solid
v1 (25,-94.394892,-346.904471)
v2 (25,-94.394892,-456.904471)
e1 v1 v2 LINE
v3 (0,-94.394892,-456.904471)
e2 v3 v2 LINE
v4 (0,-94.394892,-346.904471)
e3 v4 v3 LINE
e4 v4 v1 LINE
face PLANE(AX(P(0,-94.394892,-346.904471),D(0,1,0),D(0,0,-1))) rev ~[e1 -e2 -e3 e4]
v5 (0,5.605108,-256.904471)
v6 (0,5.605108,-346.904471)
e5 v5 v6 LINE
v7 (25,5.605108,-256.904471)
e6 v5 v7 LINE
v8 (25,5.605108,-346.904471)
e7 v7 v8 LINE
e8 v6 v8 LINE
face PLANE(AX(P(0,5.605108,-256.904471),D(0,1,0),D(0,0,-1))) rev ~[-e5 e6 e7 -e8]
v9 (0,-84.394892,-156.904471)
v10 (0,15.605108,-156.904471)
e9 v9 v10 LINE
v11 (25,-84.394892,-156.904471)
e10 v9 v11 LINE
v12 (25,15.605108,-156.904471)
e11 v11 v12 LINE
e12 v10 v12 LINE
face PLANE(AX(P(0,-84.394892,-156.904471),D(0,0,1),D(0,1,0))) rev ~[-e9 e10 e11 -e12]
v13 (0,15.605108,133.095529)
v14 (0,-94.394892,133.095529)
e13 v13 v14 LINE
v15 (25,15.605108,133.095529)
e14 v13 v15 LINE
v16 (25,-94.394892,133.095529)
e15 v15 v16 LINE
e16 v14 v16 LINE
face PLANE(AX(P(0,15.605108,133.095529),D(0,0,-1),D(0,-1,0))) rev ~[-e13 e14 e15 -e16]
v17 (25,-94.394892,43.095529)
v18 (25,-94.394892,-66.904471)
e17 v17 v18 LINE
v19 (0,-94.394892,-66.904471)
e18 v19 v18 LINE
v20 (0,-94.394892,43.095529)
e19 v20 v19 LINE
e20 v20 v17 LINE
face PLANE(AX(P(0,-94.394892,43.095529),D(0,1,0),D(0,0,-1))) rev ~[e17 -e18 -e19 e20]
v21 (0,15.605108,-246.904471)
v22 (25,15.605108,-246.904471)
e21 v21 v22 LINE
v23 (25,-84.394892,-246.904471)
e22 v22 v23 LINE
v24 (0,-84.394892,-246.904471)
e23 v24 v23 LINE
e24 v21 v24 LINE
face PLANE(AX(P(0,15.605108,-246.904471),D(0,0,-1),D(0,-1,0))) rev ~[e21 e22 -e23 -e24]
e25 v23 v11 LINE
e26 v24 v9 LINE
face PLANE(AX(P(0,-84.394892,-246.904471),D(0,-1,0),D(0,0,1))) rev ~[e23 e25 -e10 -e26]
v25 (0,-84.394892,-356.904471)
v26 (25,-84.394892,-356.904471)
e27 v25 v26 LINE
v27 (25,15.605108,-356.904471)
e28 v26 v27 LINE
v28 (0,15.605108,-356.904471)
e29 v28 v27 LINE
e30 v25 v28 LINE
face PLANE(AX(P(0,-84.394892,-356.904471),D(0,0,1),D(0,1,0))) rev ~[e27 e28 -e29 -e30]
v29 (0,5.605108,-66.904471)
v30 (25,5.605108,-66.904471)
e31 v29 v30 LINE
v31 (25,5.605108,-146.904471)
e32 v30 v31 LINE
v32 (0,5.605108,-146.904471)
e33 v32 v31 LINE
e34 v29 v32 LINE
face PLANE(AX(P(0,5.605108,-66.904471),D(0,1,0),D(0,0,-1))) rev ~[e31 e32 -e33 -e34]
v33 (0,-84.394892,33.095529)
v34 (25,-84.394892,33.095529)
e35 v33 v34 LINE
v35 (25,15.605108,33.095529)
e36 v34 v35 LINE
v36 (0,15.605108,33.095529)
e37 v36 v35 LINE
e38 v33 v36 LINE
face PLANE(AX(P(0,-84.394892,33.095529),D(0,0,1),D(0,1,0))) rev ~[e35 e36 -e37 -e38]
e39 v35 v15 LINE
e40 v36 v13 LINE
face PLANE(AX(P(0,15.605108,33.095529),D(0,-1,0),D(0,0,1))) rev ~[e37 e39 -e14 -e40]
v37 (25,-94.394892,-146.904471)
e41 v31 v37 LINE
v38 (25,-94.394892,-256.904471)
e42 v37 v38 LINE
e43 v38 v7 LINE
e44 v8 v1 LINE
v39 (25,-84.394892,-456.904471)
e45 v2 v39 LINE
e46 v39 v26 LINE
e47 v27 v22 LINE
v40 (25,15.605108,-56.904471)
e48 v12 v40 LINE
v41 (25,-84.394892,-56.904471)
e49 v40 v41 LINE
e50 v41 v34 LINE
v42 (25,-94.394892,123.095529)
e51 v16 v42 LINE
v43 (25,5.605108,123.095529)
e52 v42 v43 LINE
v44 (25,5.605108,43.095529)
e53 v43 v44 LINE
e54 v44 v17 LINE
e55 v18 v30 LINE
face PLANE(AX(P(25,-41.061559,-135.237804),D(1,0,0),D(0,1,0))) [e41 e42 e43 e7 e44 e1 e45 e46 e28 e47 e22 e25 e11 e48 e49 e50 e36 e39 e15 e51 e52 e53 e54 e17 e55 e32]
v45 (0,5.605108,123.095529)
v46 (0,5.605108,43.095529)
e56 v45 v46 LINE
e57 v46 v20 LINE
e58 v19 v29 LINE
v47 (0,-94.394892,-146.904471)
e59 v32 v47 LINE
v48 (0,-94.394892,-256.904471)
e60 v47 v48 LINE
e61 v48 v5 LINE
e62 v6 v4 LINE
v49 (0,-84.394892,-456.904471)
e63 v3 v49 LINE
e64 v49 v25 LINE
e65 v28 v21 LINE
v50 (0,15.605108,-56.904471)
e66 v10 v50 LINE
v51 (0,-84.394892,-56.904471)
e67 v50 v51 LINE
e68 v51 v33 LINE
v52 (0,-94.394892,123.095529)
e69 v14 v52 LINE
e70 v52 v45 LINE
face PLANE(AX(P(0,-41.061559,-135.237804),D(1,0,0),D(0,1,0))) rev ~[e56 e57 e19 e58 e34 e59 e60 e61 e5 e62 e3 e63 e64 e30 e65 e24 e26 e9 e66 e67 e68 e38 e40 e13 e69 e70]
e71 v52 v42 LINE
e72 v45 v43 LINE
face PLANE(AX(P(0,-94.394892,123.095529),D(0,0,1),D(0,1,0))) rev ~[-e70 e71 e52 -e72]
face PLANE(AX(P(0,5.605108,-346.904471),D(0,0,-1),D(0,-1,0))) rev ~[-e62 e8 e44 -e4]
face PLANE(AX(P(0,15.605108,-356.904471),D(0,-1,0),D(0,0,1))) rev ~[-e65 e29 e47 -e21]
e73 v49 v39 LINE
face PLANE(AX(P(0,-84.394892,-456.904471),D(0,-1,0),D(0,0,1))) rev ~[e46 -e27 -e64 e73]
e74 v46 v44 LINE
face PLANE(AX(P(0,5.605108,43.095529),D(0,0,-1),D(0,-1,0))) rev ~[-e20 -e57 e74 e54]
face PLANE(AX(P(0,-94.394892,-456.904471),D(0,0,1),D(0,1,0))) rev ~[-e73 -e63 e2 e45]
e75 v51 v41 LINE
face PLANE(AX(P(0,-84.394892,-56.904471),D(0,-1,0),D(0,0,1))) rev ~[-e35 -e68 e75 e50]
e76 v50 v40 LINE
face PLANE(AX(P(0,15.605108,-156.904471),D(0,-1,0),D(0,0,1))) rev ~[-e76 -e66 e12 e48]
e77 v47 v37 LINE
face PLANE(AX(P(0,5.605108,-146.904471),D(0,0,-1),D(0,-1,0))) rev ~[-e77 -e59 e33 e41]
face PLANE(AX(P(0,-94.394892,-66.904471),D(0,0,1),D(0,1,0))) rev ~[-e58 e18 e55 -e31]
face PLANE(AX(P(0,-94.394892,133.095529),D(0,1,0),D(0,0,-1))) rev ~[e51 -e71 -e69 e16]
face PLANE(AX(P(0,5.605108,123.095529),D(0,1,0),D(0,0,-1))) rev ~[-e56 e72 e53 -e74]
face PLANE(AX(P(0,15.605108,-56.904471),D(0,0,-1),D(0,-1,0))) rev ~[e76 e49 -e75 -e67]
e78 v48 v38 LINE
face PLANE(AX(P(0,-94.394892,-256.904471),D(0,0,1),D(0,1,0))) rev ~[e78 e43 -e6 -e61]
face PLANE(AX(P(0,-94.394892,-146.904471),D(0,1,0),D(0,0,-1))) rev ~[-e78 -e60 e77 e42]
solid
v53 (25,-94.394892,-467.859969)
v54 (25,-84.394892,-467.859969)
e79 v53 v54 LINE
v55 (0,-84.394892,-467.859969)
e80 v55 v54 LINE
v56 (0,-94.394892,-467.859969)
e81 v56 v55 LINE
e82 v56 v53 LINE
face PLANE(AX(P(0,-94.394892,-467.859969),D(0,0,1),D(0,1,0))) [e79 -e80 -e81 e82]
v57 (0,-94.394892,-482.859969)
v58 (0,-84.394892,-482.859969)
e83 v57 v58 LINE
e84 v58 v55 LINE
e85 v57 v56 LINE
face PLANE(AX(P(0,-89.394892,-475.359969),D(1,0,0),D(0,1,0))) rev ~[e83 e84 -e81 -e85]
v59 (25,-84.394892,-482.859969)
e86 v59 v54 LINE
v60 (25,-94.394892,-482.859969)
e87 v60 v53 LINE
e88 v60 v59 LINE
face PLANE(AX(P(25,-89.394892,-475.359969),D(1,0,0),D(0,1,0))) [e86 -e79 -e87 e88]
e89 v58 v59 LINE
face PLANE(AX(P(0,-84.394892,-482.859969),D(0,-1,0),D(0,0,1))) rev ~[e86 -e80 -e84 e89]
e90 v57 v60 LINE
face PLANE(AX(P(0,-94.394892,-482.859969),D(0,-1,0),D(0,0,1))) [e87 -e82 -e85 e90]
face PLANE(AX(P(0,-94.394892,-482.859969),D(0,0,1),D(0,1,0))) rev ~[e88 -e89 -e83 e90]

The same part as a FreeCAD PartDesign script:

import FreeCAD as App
import Part
import Sketcher

V = App.Vector
Q = App.Units.Quantity

doc = App.newDocument("Part")
body = doc.addObject("PartDesign::Body", "Body")
body.AllowCompound = True

# Sketch on YZ plane
sketch1 = body.newObject("Sketcher::SketchObject", "Sketch")
sketch1.AttachmentSupport = (doc.getObject("YZ_Plane"), [""])
sketch1.MapMode = "FlatFace"
sketch1.addGeometry([
    Part.LineSegment(V(-94, 133, 0), V(-94, 123, 0)),  # 0
    Part.LineSegment(V(-94, 123, 0), V(6, 123, 0)),  # 1
    Part.LineSegment(V(6, 123, 0), V(6, 43, 0)),  # 2
    Part.LineSegment(V(6, 43, 0), V(-94, 43, 0)),  # 3
    Part.LineSegment(V(-94, 43, 0), V(-94, -67, 0)),  # 4
    Part.LineSegment(V(-94, -67, 0), V(6, -67, 0)),  # 5
    Part.LineSegment(V(6, -67, 0), V(6, -147, 0)),  # 6
    Part.LineSegment(V(6, -147, 0), V(-94, -147, 0)),  # 7
    Part.LineSegment(V(-94, -147, 0), V(-94, -257, 0)),  # 8
    Part.LineSegment(V(-94, -257, 0), V(6, -257, 0)),  # 9
    Part.LineSegment(V(6, -257, 0), V(6, -347, 0)),  # 10
    Part.LineSegment(V(6, -347, 0), V(-94, -347, 0)),  # 11
    Part.LineSegment(V(-94, -347, 0), V(-94, -457, 0)),  # 12
    Part.LineSegment(V(-94, -457, 0), V(-84, -457, 0)),  # 13
    Part.LineSegment(V(-84, -457, 0), V(-84, -357, 0)),  # 14
    Part.LineSegment(V(-84, -357, 0), V(16, -357, 0)),  # 15
    Part.LineSegment(V(16, -357, 0), V(16, -247, 0)),  # 16
    Part.LineSegment(V(16, -247, 0), V(-84, -247, 0)),  # 17
    Part.LineSegment(V(-84, -247, 0), V(-84, -157, 0)),  # 18
    Part.LineSegment(V(-84, -157, 0), V(16, -157, 0)),  # 19
    Part.LineSegment(V(16, -157, 0), V(16, -57, 0)),  # 20
    Part.LineSegment(V(16, -57, 0), V(-84, -57, 0)),  # 21
    Part.LineSegment(V(-84, -57, 0), V(-84, 33, 0)),  # 22
    Part.LineSegment(V(-84, 33, 0), V(16, 33, 0)),  # 23
    Part.LineSegment(V(16, 33, 0), V(16, 133, 0)),  # 24
    Part.LineSegment(V(16, 133, 0), V(-94, 133, 0)),  # 25
    Part.LineSegment(V(-94, -468, 0), V(-94, -483, 0)),  # 26
    Part.LineSegment(V(-94, -483, 0), V(-84, -483, 0)),  # 27
    Part.LineSegment(V(-84, -483, 0), V(-84, -468, 0)),  # 28
    Part.LineSegment(V(-84, -468, 0), V(-94, -468, 0)),  # 29
], False)
sketch1.addConstraint([
    Sketcher.Constraint("Coincident", 0, 2, 1, 1),
    Sketcher.Constraint("Coincident", 1, 2, 2, 1),
    Sketcher.Constraint("Coincident", 2, 2, 3, 1),
    Sketcher.Constraint("Coincident", 3, 2, 4, 1),
    Sketcher.Constraint("Coincident", 4, 2, 5, 1),
    Sketcher.Constraint("Coincident", 5, 2, 6, 1),
    Sketcher.Constraint("Coincident", 6, 2, 7, 1),
    Sketcher.Constraint("Coincident", 7, 2, 8, 1),
    Sketcher.Constraint("Coincident", 8, 2, 9, 1),
    Sketcher.Constraint("Coincident", 9, 2, 10, 1),
    Sketcher.Constraint("Coincident", 10, 2, 11, 1),
    Sketcher.Constraint("Coincident", 11, 2, 12, 1),
    Sketcher.Constraint("Coincident", 12, 2, 13, 1),
    Sketcher.Constraint("Coincident", 13, 2, 14, 1),
    Sketcher.Constraint("Coincident", 14, 2, 15, 1),
    Sketcher.Constraint("Coincident", 15, 2, 16, 1),
    Sketcher.Constraint("Coincident", 16, 2, 17, 1),
    Sketcher.Constraint("Coincident", 17, 2, 18, 1),
    Sketcher.Constraint("Coincident", 18, 2, 19, 1),
    Sketcher.Constraint("Coincident", 19, 2, 20, 1),
    Sketcher.Constraint("Coincident", 20, 2, 21, 1),
    Sketcher.Constraint("Coincident", 21, 2, 22, 1),
    Sketcher.Constraint("Coincident", 22, 2, 23, 1),
    Sketcher.Constraint("Coincident", 23, 2, 24, 1),
    Sketcher.Constraint("Coincident", 24, 2, 25, 1),
    Sketcher.Constraint("Coincident", 25, 2, 0, 1),
    Sketcher.Constraint("Coincident", 26, 2, 27, 1),
    Sketcher.Constraint("Coincident", 27, 2, 28, 1),
    Sketcher.Constraint("Coincident", 28, 2, 29, 1),
    Sketcher.Constraint("Coincident", 29, 2, 26, 1),
    Sketcher.Constraint("Vertical", 0),
    Sketcher.Constraint("Horizontal", 1),
    Sketcher.Constraint("Vertical", 2),
    Sketcher.Constraint("Horizontal", 3),
    Sketcher.Constraint("Vertical", 4),
    Sketcher.Constraint("Horizontal", 5),
    Sketcher.Constraint("Vertical", 6),
    Sketcher.Constraint("Horizontal", 7),
    Sketcher.Constraint("Vertical", 8),
    Sketcher.Constraint("Horizontal", 9),
    Sketcher.Constraint("Vertical", 10),
    Sketcher.Constraint("Horizontal", 11),
    Sketcher.Constraint("Vertical", 12),
    Sketcher.Constraint("Horizontal", 13),
    Sketcher.Constraint("Vertical", 14),
    Sketcher.Constraint("Horizontal", 15),
    Sketcher.Constraint("Vertical", 16),
    Sketcher.Constraint("Horizontal", 17),
    Sketcher.Constraint("Vertical", 18),
    Sketcher.Constraint("Horizontal", 19),
    Sketcher.Constraint("Vertical", 20),
    Sketcher.Constraint("Horizontal", 21),
    Sketcher.Constraint("Vertical", 22),
    Sketcher.Constraint("Horizontal", 23),
    Sketcher.Constraint("Vertical", 24),
    Sketcher.Constraint("Horizontal", 25),
    Sketcher.Constraint("Vertical", 26),
    Sketcher.Constraint("Horizontal", 27),
    Sketcher.Constraint("Vertical", 28),
    Sketcher.Constraint("Horizontal", 29),
    Sketcher.Constraint("Vertical", 0, 2, 3, 2),
    Sketcher.Constraint("Vertical", 2, 2, 5, 2),
    Sketcher.Constraint("Vertical", 4, 2, 7, 2),
    Sketcher.Constraint("Vertical", 6, 2, 9, 2),
    Sketcher.Constraint("Vertical", 8, 2, 11, 2),
    Sketcher.Constraint("Vertical", 14, 2, 17, 2),
    Sketcher.Constraint("Vertical", 16, 2, 19, 2),
    Sketcher.Constraint("Vertical", 18, 2, 21, 2),
    Sketcher.Constraint("Vertical", 20, 2, 23, 2),
    Sketcher.Constraint("Vertical", 25, 2, 26, 2),
    Sketcher.Constraint("Vertical", 22, 2, 27, 2),
    Sketcher.Constraint("Equal", 11, 15),
    Sketcher.Constraint("Equal", 29, 0),
    Sketcher.Constraint("Equal", 25, 4),
    Sketcher.Constraint("Equal", 2, 6),
    Sketcher.Constraint("Equal", 4, 8),
    Sketcher.Constraint("Equal", 8, 12),
    Sketcher.Constraint("Equal", 23, 14),
    Sketcher.Constraint("Equal", 12, 16),
    Sketcher.Constraint("Equal", 10, 18),
    Sketcher.Constraint("Equal", 14, 20),
    Sketcher.Constraint("Equal", 18, 22),
    Sketcher.Constraint("Equal", 20, 24),
    Sketcher.Constraint("DistanceX", 1, 1, 1, 2, Q("100 mm")),
    Sketcher.Constraint("DistanceX", 13, 1, 13, 2, Q("10 mm")),
    Sketcher.Constraint("DistanceY", 2, 2, 2, 1, Q("80 mm")),
    Sketcher.Constraint("DistanceY", 26, 2, 26, 1, Q("15 mm")),
    Sketcher.Constraint("DistanceX", 0, 2, -1, 1, Q("94.394892 mm")),
    Sketcher.Constraint("DistanceY", -1, 1, 0, 2, Q("123.095529 mm")),
    Sketcher.Constraint("DistanceY", 26, 2, -1, 1, Q("482.859969 mm")),
])
pad1 = body.newObject("PartDesign::Pad", "Pad")
pad1.Profile = sketch1
pad1.Length = 25

doc.recompute()
